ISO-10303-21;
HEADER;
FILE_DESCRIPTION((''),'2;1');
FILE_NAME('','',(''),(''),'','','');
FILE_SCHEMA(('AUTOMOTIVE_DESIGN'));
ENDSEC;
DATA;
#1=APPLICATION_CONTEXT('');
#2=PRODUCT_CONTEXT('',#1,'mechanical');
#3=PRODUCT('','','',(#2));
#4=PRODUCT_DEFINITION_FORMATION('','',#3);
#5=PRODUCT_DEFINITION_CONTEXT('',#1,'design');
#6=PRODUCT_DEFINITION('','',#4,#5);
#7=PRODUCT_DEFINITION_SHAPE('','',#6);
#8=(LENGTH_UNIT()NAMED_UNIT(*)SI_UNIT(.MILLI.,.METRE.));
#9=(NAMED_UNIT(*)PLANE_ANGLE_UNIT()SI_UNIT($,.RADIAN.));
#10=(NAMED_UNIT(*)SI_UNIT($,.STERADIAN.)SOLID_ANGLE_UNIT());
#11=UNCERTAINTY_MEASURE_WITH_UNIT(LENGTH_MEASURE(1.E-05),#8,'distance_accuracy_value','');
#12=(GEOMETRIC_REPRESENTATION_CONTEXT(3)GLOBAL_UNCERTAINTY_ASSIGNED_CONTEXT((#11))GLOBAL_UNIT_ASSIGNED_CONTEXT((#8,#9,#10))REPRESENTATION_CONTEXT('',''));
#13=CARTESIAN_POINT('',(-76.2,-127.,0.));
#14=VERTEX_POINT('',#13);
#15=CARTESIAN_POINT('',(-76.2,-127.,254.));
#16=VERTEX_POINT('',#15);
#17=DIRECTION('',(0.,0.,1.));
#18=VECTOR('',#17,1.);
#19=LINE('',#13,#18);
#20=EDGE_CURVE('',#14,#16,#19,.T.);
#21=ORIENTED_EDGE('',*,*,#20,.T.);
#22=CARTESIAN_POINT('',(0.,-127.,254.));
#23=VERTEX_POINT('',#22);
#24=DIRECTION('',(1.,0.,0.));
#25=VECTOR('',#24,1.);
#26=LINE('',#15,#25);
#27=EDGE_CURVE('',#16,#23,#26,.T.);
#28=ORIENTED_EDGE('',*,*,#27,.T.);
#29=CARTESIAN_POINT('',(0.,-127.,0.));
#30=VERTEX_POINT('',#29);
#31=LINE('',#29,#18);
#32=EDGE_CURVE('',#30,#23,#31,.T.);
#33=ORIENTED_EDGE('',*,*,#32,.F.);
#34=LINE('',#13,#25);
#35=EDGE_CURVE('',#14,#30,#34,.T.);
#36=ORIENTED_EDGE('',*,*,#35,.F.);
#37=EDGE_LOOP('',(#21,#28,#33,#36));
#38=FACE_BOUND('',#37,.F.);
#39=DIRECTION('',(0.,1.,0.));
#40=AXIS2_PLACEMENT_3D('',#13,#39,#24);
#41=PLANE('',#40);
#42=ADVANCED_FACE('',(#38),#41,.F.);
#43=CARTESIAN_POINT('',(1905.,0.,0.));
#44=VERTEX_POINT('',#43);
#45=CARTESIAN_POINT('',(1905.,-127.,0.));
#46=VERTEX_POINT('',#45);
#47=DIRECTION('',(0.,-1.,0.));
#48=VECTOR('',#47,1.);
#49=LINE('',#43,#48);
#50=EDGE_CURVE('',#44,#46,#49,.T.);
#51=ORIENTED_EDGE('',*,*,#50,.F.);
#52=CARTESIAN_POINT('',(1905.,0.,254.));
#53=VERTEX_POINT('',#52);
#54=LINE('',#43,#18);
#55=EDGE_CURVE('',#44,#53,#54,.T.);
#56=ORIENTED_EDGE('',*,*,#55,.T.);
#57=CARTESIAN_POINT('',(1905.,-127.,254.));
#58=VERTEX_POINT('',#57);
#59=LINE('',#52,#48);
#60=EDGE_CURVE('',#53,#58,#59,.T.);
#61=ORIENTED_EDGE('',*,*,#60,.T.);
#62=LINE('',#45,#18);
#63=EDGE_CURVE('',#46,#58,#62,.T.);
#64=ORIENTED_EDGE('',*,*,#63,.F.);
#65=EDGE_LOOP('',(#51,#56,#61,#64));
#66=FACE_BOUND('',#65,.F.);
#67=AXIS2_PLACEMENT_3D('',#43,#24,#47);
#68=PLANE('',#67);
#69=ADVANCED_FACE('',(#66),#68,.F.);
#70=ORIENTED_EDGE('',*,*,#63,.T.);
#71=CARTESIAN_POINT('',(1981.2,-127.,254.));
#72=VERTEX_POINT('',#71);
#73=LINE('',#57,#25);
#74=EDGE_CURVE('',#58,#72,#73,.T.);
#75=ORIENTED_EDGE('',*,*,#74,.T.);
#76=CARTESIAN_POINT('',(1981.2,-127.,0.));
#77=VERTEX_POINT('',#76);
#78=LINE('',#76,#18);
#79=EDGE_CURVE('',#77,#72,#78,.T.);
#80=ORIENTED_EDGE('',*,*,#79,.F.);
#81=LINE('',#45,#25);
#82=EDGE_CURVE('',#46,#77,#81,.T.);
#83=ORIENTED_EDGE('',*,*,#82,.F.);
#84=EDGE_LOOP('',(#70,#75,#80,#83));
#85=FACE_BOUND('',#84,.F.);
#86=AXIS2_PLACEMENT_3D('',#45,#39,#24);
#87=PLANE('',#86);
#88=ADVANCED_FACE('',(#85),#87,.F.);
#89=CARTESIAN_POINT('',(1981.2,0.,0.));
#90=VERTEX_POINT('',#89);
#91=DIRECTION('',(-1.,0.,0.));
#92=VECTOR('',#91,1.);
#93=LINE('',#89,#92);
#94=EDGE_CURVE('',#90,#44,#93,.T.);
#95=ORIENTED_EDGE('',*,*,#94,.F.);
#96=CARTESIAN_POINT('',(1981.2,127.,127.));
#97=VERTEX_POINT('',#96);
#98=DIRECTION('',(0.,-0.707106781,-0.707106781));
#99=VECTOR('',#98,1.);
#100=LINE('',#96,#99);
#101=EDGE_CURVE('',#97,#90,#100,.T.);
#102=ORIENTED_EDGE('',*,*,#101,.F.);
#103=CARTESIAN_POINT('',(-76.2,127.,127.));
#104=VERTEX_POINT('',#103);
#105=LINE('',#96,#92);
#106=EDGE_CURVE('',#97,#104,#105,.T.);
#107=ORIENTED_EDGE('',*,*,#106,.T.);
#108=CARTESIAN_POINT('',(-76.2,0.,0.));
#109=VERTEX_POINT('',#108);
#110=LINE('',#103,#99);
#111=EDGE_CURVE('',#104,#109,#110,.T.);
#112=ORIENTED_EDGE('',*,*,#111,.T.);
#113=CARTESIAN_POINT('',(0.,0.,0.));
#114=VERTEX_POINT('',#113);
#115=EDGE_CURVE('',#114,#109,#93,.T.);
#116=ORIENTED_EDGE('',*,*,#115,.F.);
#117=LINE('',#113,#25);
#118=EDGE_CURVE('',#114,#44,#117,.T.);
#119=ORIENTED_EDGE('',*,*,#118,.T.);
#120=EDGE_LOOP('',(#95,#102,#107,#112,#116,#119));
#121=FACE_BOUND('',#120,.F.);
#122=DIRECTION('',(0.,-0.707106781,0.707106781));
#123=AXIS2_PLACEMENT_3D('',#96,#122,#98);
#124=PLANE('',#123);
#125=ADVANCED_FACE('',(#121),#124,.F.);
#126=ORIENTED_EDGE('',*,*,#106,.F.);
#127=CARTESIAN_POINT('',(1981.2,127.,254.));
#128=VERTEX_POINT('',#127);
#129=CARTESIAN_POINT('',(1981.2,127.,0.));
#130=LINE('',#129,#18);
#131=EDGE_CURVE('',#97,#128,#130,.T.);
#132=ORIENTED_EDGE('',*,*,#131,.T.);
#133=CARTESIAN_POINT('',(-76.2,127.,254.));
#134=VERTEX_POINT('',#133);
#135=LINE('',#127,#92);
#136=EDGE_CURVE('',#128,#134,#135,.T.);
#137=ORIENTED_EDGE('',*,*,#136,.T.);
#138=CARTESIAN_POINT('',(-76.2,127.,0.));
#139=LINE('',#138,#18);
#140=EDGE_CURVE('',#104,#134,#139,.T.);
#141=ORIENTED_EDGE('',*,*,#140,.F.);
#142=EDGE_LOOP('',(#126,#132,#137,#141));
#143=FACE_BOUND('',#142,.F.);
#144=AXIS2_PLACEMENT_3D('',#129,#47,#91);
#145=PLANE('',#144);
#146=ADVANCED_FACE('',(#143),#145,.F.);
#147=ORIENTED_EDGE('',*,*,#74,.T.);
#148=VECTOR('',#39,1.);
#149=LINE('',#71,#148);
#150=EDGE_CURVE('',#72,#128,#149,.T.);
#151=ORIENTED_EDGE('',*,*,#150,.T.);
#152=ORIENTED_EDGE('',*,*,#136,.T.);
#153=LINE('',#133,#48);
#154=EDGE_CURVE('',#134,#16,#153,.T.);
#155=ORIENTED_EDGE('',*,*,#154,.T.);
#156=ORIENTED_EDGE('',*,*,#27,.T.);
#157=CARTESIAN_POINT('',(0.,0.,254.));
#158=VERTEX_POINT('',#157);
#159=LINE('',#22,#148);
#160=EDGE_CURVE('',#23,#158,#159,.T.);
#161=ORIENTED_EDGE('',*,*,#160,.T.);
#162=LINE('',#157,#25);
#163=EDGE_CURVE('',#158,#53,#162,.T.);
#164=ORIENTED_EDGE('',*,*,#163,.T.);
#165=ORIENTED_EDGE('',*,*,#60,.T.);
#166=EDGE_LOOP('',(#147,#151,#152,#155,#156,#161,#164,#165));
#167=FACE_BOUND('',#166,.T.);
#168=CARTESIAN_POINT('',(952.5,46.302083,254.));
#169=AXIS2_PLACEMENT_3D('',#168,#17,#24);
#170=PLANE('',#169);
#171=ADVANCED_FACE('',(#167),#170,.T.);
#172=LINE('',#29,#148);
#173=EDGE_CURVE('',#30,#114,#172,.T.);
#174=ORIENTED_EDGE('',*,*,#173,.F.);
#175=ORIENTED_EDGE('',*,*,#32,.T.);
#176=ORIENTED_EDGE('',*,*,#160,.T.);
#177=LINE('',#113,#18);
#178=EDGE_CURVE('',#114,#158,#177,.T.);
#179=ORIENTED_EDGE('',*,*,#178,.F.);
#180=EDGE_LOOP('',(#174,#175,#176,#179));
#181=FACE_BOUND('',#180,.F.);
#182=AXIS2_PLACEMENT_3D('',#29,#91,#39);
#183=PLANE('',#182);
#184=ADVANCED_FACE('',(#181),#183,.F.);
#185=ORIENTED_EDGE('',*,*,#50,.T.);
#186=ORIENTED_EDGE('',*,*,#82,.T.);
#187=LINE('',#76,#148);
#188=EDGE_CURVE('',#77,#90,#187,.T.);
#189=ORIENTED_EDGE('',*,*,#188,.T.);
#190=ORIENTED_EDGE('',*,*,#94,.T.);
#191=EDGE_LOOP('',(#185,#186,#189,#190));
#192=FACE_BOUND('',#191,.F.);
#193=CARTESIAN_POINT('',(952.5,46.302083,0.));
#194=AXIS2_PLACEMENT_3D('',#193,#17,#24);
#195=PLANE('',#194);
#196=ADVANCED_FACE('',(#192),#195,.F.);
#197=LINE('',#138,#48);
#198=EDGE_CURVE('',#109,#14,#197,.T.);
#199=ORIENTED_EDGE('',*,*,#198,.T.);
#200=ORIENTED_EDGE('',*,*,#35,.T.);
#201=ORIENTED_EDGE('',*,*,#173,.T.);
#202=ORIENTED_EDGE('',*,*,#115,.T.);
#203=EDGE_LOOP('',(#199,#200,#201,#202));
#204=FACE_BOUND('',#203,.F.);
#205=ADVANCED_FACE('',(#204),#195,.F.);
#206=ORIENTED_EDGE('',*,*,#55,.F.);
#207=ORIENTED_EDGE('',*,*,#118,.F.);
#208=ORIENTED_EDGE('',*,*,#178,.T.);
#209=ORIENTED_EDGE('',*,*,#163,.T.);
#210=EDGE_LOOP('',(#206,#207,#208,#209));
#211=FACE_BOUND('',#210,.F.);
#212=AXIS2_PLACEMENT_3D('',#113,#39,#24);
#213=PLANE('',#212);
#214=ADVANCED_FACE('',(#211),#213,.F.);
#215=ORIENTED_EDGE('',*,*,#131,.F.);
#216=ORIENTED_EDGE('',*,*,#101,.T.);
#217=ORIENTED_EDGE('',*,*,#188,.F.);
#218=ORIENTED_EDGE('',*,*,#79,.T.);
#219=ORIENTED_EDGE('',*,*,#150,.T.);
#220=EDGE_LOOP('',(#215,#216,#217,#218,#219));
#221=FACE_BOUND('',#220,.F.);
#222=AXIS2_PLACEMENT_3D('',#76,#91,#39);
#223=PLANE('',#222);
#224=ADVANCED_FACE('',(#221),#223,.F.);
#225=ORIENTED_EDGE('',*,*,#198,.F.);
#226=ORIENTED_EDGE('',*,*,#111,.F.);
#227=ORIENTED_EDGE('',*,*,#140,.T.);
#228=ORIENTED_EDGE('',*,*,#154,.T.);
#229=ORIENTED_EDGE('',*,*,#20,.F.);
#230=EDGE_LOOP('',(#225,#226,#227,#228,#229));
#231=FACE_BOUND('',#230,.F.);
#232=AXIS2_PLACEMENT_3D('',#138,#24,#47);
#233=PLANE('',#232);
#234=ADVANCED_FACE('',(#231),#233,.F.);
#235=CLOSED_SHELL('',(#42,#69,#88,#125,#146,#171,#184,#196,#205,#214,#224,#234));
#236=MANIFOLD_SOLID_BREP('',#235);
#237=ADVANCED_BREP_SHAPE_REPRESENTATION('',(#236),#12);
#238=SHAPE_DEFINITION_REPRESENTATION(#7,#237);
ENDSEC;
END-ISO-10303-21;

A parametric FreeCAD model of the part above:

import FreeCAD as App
import Part
import Sketcher
from FreeCAD import Vector
Q = App.Units.Quantity


def add_polygon(sketch, points):
    """Adds a closed chain of lines whose ends are joined by coincident constraints."""
    first, n = sketch.GeometryCount, len(points)
    for a, b in zip(points, points[1:] + points[:1]):
        sketch.addGeometry(Part.LineSegment(App.Vector(*a, 0), App.Vector(*b, 0)), False)
    for i in range(n):
        sketch.addConstraint(Sketcher.Constraint("Coincident", first + i, 2, first + (i + 1) % n, 1))

doc = App.newDocument("Part")
body = doc.addObject("PartDesign::Body", "Body")

# Sketch on XY plane
sketch1 = body.newObject("Sketcher::SketchObject", "Sketch")
sketch1.AttachmentSupport = (doc.getObject("XY_Plane"), [""])
sketch1.MapMode = "FlatFace"
add_polygon(sketch1, [(0, -127), (0, 0), (1905, 0), (1905, -127), (1981, -127), (1981, 127), (-76, 127), (-76, -127)])  # lines 0-7
sketch1.addConstraint([
    Sketcher.Constraint("Vertical", 0),
    Sketcher.Constraint("Horizontal", 1),
    Sketcher.Constraint("Vertical", 2),
    Sketcher.Constraint("Horizontal", 3),
    Sketcher.Constraint("Vertical", 4),
    Sketcher.Constraint("Horizontal", 5),
    Sketcher.Constraint("Vertical", 6),
    Sketcher.Constraint("Horizontal", 7),
    Sketcher.Constraint("Coincident", 0, 2, -1, 1),
    Sketcher.Constraint("Horizontal", 3, 2, 6, 2),
    Sketcher.Constraint("Equal", 3, 7),
    Sketcher.Constraint("DistanceX", 1, 1, 1, 2, Q("75 in")),
    Sketcher.Constraint("DistanceX", 3, 1, 3, 2, Q("3 in")),
    Sketcher.Constraint("DistanceY", 0, 1, 0, 2, Q("5 in")),
    Sketcher.Constraint("DistanceY", 4, 1, 4, 2, Q("10 in")),
])
pad1 = body.newObject("PartDesign::Pad", "Pad")
pad1.Profile = sketch1
pad1.Length = Q("10 in")

# Sketch on YZ plane
sketch2 = body.newObject("Sketcher::SketchObject", "Sketch001")
sketch2.AttachmentSupport = (doc.getObject("YZ_Plane"), [""])
sketch2.MapMode = "FlatFace"
sketch2.AttachmentOffset = App.Placement(Vector(0, 0, 78 * 25.4), App.Rotation())
add_polygon(sketch2, [(127, 127), (0, 0), (127, 0)])  # lines 0-2
sketch2.addConstraint([
    Sketcher.Constraint("Horizontal", 1),
    Sketcher.Constraint("Vertical", 2),
    Sketcher.Constraint("Coincident", 0, 2, -1, 1),
    Sketcher.Constraint("Equal", 1, 2),
    Sketcher.Constraint("DistanceX", 1, 1, 1, 2, Q("5 in")),
])
pocket1 = body.newObject("PartDesign::Pocket", "Pocket")
pocket1.Profile = sketch2
pocket1.Length = Q("81 in")

doc.recompute()
